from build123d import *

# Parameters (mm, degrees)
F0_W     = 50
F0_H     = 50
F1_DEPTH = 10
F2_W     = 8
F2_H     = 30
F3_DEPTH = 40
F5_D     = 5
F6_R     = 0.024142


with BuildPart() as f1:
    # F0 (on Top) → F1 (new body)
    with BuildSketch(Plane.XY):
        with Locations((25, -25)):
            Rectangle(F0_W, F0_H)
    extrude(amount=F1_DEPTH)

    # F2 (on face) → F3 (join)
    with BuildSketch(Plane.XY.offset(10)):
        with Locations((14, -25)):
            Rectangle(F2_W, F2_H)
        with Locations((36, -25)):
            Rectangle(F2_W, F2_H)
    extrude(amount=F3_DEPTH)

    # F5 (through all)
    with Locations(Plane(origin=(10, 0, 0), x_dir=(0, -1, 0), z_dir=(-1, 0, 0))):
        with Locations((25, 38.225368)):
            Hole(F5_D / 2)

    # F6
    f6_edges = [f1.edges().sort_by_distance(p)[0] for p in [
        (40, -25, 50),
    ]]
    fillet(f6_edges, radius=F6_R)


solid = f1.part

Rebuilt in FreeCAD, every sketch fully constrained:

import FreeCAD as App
import Part
import Sketcher

V = App.Vector
Q = App.Units.Quantity


def edges_at(feature, points):
    """Names of the edges that pass closest to the given points."""
    edges = feature.Shape.Edges
    near = lambda p: min(range(len(edges)), key=lambda i: edges[i].distToShape(Part.Vertex(*p))[0])
    return sorted({f"Edge{near(p) + 1}" for p in points})

doc = App.newDocument("Part")
body = doc.addObject("PartDesign::Body", "Body")

sketch1 = body.newObject("Sketcher::SketchObject", "Sketch")
sketch1.AttachmentSupport = (doc.getObject("XY_Plane"), [""])
sketch1.MapMode = "FlatFace"
sketch1.addGeometry([
    Part.LineSegment(V(0, 0, 0), V(0, -50, 0)),
    Part.LineSegment(V(0, -50, 0), V(50, -50, 0)),
    Part.LineSegment(V(50, -50, 0), V(50, 0, 0)),
    Part.LineSegment(V(50, 0, 0), V(0, 0, 0)),
], False)
sketch1.addConstraint([
    Sketcher.Constraint("Coincident", 0, 2, 1, 1),
    Sketcher.Constraint("Coincident", 1, 2, 2, 1),
    Sketcher.Constraint("Coincident", 2, 2, 3, 1),
    Sketcher.Constraint("Coincident", 3, 2, 0, 1),
    Sketcher.Constraint("Vertical", 0),
    Sketcher.Constraint("Horizontal", 1),
    Sketcher.Constraint("Vertical", 2),
    Sketcher.Constraint("Horizontal", 3),
    Sketcher.Constraint("Coincident", 3, 2, -1, 1),
    Sketcher.Constraint("Equal", 3, 0),
    Sketcher.Constraint("DistanceX", 1, 1, 1, 2, Q("50 mm")),
])
pad1 = body.newObject("PartDesign::Pad", "Pad")
pad1.Profile = sketch1
pad1.Length = 10

sketch2 = body.newObject("Sketcher::SketchObject", "Sketch001")
sketch2.AttachmentSupport = (doc.getObject("XY_Plane"), [""])
sketch2.MapMode = "FlatFace"
sketch2.AttachmentOffset = App.Placement(V(0, 0, 10), App.Rotation())
sketch2.addGeometry([
    Part.LineSegment(V(10, -10, 0), V(10, -40, 0)),
    Part.LineSegment(V(10, -40, 0), V(18, -40, 0)),
    Part.LineSegment(V(18, -40, 0), V(18, -10, 0)),
    Part.LineSegment(V(18, -10, 0), V(10, -10, 0)),
    Part.LineSegment(V(32, -10, 0), V(32, -40, 0)),
    Part.LineSegment(V(32, -40, 0), V(40, -40, 0)),
    Part.LineSegment(V(40, -40, 0), V(40, -10, 0)),
    Part.LineSegment(V(40, -10, 0), V(32, -10, 0)),
], False)
sketch2.addConstraint([
    Sketcher.Constraint("Coincident", 0, 2, 1, 1),
    Sketcher.Constraint("Coincident", 1, 2, 2, 1),
    Sketcher.Constraint("Coincident", 2, 2, 3, 1),
    Sketcher.Constraint("Coincident", 3, 2, 0, 1),
    Sketcher.Constraint("Coincident", 4, 2, 5, 1),
    Sketcher.Constraint("Coincident", 5, 2, 6, 1),
    Sketcher.Constraint("Coincident", 6, 2, 7, 1),
    Sketcher.Constraint("Coincident", 7, 2, 4, 1),
    Sketcher.Constraint("Vertical", 0),
    Sketcher.Constraint("Horizontal", 1),
    Sketcher.Constraint("Vertical", 2),
    Sketcher.Constraint("Horizontal", 3),
    Sketcher.Constraint("Vertical", 4),
    Sketcher.Constraint("Horizontal", 5),
    Sketcher.Constraint("Vertical", 6),
    Sketcher.Constraint("Horizontal", 7),
    Sketcher.Constraint("Horizontal", 1, 2, 4, 2),
    Sketcher.Constraint("Horizontal", 3, 2, 6, 2),
    Sketcher.Constraint("Equal", 3, 5),
    Sketcher.Constraint("DistanceX", 1, 1, 1, 2, Q("8 mm")),
    Sketcher.Constraint("DistanceY", 0, 2, 0, 1, Q("30 mm")),
    Sketcher.Constraint("DistanceX", -1, 1, 0, 2, Q("10 mm")),
    Sketcher.Constraint("DistanceY", 0, 2, -1, 1, Q("40 mm")),
    Sketcher.Constraint("DistanceX", -1, 1, 4, 2, Q("32 mm")),
])
pad2 = body.newObject("PartDesign::Pad", "Pad001")
pad2.Profile = sketch2
pad2.Length = 40

sketch3 = body.newObject("Sketcher::SketchObject", "Sketch002")
sketch3.AttachmentSupport = (doc.getObject("YZ_Plane"), [""])
sketch3.MapMode = "FlatFace"
sketch3.AttachmentOffset = App.Placement(V(0, 0, 10), App.Rotation())
sketch3.addGeometry(Part.Circle(V(-25, 38.2, 0), V(0, 0, 1), 2.5), False)
sketch3.addConstraint([
    Sketcher.Constraint("Diameter", 0, Q("5 mm")),
    Sketcher.Constraint("DistanceX", 0, 3, -1, 1, Q("25 mm")),
    Sketcher.Constraint("DistanceY", -1, 1, 0, 3, Q("38.225368 mm")),
])
doc.recompute()
hole = body.newObject("PartDesign::Hole", "Hole")
hole.Profile = sketch3
hole.ThreadType = "None"
hole.Diameter = 5
hole.DepthType = "ThroughAll"
hole.Reversed = True
doc.recompute()

fillet = body.newObject("PartDesign::Fillet", "Fillet")
fillet.Base = (hole, edges_at(hole, [(40, -25, 50)]))
fillet.Radius = 0.024142

doc.recompute()
